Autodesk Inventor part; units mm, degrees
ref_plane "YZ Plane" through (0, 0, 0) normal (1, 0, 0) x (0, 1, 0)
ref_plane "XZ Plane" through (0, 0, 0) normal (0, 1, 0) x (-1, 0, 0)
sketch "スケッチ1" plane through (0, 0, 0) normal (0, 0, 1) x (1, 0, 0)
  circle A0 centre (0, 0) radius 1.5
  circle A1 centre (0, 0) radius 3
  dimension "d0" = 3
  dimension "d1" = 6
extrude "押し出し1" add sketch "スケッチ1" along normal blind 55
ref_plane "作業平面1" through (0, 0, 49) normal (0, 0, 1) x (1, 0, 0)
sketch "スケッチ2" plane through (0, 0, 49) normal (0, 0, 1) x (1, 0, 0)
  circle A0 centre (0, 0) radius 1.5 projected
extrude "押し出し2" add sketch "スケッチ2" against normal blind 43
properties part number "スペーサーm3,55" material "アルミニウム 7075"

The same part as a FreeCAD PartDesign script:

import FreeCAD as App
import Part
import Sketcher
Q = App.Units.Quantity

doc = App.newDocument("Part")
body = doc.addObject("PartDesign::Body", "Body")

# Sketch on XY plane
sketch1 = doc.addObject("Sketcher::SketchObject", "Sketch")
body.addObject(sketch1)
sketch1.AttachmentSupport = (doc.XY_Plane, [""])
sketch1.MapMode = "FlatFace"
sketch1.addGeometry(Part.Circle(App.Vector(0, 0, 0), App.Vector(0, 0, 1), 3), False)
sketch1.addGeometry(Part.Circle(App.Vector(0, 0, 0), App.Vector(0, 0, 1), 1.5), False)
sketch1.addConstraint(Sketcher.Constraint("Coincident", 0, 3, -1, 1))
sketch1.addConstraint(Sketcher.Constraint("Coincident", 1, 3, -1, 1))
sketch1.addConstraint(Sketcher.Constraint("Diameter", 0, Q("6 mm")))
sketch1.addConstraint(Sketcher.Constraint("Diameter", 1, Q("3 mm")))
pad1 = doc.addObject("PartDesign::Pad", "Pad")
body.addObject(pad1)
pad1.Profile = sketch1
pad1.Length = 55

# Sketch on XY plane
sketch2 = doc.addObject("Sketcher::SketchObject", "Sketch001")
body.addObject(sketch2)
sketch2.AttachmentSupport = (doc.XY_Plane, [""])
sketch2.MapMode = "FlatFace"
sketch2.AttachmentOffset = App.Placement(App.Vector(0, 0, 49), App.Rotation())
sketch2.addGeometry(Part.Circle(App.Vector(0, 0, 0), App.Vector(0, 0, 1), 1.5), False)
sketch2.addConstraint(Sketcher.Constraint("Coincident", 0, 3, -1, 1))
sketch2.addConstraint(Sketcher.Constraint("Diameter", 0, Q("3 mm")))
pad2 = doc.addObject("PartDesign::Pad", "Pad001")
body.addObject(pad2)
pad2.Profile = sketch2
pad2.Length = 43
pad2.Reversed = True

doc.recompute()
